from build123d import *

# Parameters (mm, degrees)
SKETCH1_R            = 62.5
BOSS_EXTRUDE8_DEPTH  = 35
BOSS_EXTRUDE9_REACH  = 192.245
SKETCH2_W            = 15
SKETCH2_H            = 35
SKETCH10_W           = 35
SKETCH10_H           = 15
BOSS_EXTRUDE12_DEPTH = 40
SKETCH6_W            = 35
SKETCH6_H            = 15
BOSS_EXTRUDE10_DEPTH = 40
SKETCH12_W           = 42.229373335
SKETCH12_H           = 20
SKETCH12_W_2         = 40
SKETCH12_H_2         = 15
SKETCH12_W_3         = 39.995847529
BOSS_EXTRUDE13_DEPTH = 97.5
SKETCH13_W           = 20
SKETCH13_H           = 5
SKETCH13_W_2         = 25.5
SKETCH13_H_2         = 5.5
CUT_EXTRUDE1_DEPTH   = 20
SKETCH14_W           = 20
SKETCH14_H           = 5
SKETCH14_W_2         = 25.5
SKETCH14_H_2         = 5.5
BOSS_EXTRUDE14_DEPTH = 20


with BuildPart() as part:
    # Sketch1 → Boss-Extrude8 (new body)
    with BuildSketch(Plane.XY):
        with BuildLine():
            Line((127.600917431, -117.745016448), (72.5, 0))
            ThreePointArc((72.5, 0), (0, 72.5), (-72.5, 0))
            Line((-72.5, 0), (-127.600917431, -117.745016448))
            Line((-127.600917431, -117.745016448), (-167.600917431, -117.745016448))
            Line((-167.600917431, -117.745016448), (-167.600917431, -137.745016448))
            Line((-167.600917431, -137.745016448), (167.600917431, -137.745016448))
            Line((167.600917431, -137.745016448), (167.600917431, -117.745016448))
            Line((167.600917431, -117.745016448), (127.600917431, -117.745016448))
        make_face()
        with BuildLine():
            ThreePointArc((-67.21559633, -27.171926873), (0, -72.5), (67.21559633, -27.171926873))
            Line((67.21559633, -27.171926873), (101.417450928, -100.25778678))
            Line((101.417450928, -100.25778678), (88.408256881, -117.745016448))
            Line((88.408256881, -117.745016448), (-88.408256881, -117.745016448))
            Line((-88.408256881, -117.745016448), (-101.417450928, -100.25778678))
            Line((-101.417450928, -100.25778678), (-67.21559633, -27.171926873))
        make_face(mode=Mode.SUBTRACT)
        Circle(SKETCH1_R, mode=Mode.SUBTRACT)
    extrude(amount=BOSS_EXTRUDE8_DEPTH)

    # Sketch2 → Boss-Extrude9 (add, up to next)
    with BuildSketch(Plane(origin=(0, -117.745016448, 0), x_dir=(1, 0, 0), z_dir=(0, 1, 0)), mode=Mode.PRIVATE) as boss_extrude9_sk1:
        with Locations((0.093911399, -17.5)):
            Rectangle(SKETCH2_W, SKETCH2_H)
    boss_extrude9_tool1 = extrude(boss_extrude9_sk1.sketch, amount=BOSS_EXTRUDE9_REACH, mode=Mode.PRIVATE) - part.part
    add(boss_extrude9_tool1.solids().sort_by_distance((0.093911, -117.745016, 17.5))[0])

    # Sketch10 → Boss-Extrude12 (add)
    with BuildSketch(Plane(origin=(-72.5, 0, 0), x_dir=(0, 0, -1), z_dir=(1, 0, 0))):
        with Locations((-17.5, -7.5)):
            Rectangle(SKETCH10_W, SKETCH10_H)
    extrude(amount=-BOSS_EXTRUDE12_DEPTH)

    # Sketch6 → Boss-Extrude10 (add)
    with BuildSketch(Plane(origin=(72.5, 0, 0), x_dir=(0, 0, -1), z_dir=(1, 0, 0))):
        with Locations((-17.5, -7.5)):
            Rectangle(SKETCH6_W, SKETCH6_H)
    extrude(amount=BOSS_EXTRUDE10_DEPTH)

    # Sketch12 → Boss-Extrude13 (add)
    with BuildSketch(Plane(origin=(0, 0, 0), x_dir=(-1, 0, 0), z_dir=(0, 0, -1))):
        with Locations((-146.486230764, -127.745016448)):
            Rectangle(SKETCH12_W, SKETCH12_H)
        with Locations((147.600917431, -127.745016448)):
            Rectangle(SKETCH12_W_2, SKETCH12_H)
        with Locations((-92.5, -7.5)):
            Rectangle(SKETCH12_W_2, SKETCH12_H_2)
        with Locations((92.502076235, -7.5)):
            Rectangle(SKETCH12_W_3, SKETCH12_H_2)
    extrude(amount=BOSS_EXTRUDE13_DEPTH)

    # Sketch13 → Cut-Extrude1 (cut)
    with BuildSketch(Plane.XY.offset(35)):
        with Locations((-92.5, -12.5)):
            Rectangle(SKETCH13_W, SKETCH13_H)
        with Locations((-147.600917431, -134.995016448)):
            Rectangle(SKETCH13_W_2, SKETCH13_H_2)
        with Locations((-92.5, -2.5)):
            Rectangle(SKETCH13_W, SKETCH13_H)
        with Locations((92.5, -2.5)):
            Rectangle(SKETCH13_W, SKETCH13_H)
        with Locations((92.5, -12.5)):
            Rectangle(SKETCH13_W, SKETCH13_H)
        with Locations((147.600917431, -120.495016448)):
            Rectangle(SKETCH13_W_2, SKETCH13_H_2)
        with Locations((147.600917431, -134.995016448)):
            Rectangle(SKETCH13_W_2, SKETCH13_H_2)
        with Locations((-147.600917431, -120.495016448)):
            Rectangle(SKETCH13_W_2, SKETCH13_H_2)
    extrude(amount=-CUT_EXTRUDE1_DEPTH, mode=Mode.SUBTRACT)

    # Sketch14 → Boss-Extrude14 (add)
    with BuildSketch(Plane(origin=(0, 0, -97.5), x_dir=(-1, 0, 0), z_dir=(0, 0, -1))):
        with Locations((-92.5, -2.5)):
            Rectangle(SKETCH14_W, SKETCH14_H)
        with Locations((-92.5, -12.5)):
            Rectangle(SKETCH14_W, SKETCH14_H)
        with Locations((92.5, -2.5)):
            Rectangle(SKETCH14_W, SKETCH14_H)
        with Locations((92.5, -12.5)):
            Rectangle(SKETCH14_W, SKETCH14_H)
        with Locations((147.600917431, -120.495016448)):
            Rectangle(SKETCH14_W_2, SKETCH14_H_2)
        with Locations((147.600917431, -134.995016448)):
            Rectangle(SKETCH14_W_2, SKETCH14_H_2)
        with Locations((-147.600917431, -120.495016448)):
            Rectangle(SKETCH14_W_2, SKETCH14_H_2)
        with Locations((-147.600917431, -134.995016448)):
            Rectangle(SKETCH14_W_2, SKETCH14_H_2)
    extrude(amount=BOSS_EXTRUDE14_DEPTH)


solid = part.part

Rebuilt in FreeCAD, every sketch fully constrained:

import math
import FreeCAD as App
import Part
import Sketcher
from FreeCAD import Vector

doc = App.newDocument("Part")
body = doc.addObject("PartDesign::Body", "Body")

sketch1 = body.newObject("Sketcher::SketchObject", "Sketch")
sketch1.AttachmentSupport = (doc.getObject("XY_Plane"), [""])
sketch1.MapMode = "FlatFace"
sketch1.addGeometry([
    Part.LineSegment(Vector(128, -118, 0), Vector(72, 0, 0)),
    Part.ArcOfCircle(Part.Circle(Vector(0, 0, 0), Vector(0, 0, 1), 72), math.radians(0), math.radians(180)),
    Part.LineSegment(Vector(-72, 0, 0), Vector(-128, -118, 0)),
    Part.LineSegment(Vector(-128, -118, 0), Vector(-168, -118, 0)),
    Part.LineSegment(Vector(-168, -118, 0), Vector(-168, -138, 0)),
    Part.LineSegment(Vector(-168, -138, 0), Vector(168, -138, 0)),
    Part.LineSegment(Vector(168, -138, 0), Vector(168, -118, 0)),
    Part.LineSegment(Vector(168, -118, 0), Vector(128, -118, 0)),
    Part.LineSegment(Vector(-101, -100, 0), Vector(-67, -27, 0)),
    Part.ArcOfCircle(Part.Circle(Vector(0, 0, 0), Vector(0, 0, 1), 72), math.radians(-158), math.radians(-22)),
    Part.LineSegment(Vector(67, -27, 0), Vector(101, -100, 0)),
    Part.LineSegment(Vector(101, -100, 0), Vector(88, -118, 0)),
    Part.LineSegment(Vector(88, -118, 0), Vector(-88, -118, 0)),
    Part.LineSegment(Vector(-88, -118, 0), Vector(-101, -100, 0)),
    Part.Circle(Vector(0, 0, 0), Vector(0, 0, 1), 62),
], False)
sketch1.addConstraint([
    Sketcher.Constraint("Coincident", 0, 2, 1, 1),
    Sketcher.Constraint("Coincident", 1, 2, 2, 1),
    Sketcher.Constraint("Coincident", 2, 2, 3, 1),
    Sketcher.Constraint("Coincident", 3, 2, 4, 1),
    Sketcher.Constraint("Coincident", 4, 2, 5, 1),
    Sketcher.Constraint("Coincident", 5, 2, 6, 1),
    Sketcher.Constraint("Coincident", 6, 2, 7, 1),
    Sketcher.Constraint("Coincident", 7, 2, 0, 1),
    Sketcher.Constraint("Coincident", 8, 2, 9, 1),
    Sketcher.Constraint("Coincident", 9, 2, 10, 1),
    Sketcher.Constraint("Coincident", 10, 2, 11, 1),
    Sketcher.Constraint("Coincident", 11, 2, 12, 1),
    Sketcher.Constraint("Coincident", 12, 2, 13, 1),
    Sketcher.Constraint("Coincident", 13, 2, 8, 1),
    Sketcher.Constraint("Horizontal", 3),
    Sketcher.Constraint("Vertical", 4),
    Sketcher.Constraint("Horizontal", 5),
    Sketcher.Constraint("Vertical", 6),
    Sketcher.Constraint("Horizontal", 7),
    Sketcher.Constraint("Horizontal", 12),
    Sketcher.Constraint("Coincident", 1, 3, -1, 1),
    Sketcher.Constraint("Coincident", 9, 3, -1, 1),
    Sketcher.Constraint("Coincident", 14, 3, -1, 1),
    Sketcher.Constraint("Equal", 1, 9),
    Sketcher.Constraint("Symmetric", 3, 2, 6, 2, -2),
    Sketcher.Constraint("Symmetric", 10, 2, 13, 2, -2),
    Sketcher.Constraint("PointOnObject", 0, 2, -1),
    Sketcher.Constraint("PointOnObject", 1, 2, -1),
    Sketcher.Constraint("Parallel", 2, 8),
    Sketcher.Constraint("Parallel", 0, 10),
    Sketcher.Constraint("Horizontal", 8, 2, 9, 2),
    Sketcher.Constraint("Horizontal", 7, 2, 11, 2),
    Sketcher.Constraint("Equal", 11, 13),
    Sketcher.Constraint("Diameter", 14, 125.0),
    Sketcher.Constraint("Radius", 1, 72.5),
    Sketcher.Constraint("DistanceX", 3, 2, 3, 1, 40.0),
    Sketcher.Constraint("DistanceY", 4, 2, 4, 1, 20.0),
    Sketcher.Constraint("Distance", 0, 130.0),
    Sketcher.Constraint("DistanceX", 5, 1, 5, 2, 335.201835),
    Sketcher.Constraint("DistanceX", 12, 2, 12, 1, 176.816514),
    Sketcher.Constraint("DistanceX", -1, 1, 10, 2, 101.417451),
    Sketcher.Constraint("DistanceX", 2, 2, 8, 2, 60.385321),
])
pad1 = body.newObject("PartDesign::Pad", "Pad")
pad1.Profile = sketch1
pad1.Length = 35

sketch2 = body.newObject("Sketcher::SketchObject", "Sketch001")
sketch2.AttachmentSupport = (doc.getObject("XZ_Plane"), [""])
sketch2.MapMode = "FlatFace"
sketch2.AttachmentOffset = App.Placement(Vector(0, 0, 117.745016), App.Rotation())
sketch2.addGeometry([
    Part.LineSegment(Vector(-7, 0, 0), Vector(-7, 35, 0)),
    Part.LineSegment(Vector(-7, 35, 0), Vector(8, 35, 0)),
    Part.LineSegment(Vector(8, 35, 0), Vector(8, 0, 0)),
    Part.LineSegment(Vector(8, 0, 0), Vector(-7, 0, 0)),
], False)
sketch2.addConstraint([
    Sketcher.Constraint("Coincident", 0, 2, 1, 1),
    Sketcher.Constraint("Coincident", 1, 2, 2, 1),
    Sketcher.Constraint("Coincident", 2, 2, 3, 1),
    Sketcher.Constraint("Coincident", 3, 2, 0, 1),
    Sketcher.Constraint("Vertical", 0),
    Sketcher.Constraint("Horizontal", 1),
    Sketcher.Constraint("Vertical", 2),
    Sketcher.Constraint("Horizontal", 3),
    Sketcher.Constraint("PointOnObject", 2, 2, -1),
    Sketcher.Constraint("DistanceX", 1, 1, 1, 2, 15.0),
    Sketcher.Constraint("DistanceY", 0, 1, 0, 2, 35.0),
    Sketcher.Constraint("DistanceX", 0, 2, -1, 1, 7.406089),
])
pad2 = body.newObject("PartDesign::Pad", "Pad001")
pad2.Profile = sketch2
pad2.Type = "UpToFirst"
pad2.Reversed = True

sketch3 = body.newObject("Sketcher::SketchObject", "Sketch002")
sketch3.AttachmentSupport = (doc.getObject("YZ_Plane"), [""])
sketch3.MapMode = "FlatFace"
sketch3.AttachmentOffset = App.Placement(Vector(0, 0, -72.5), App.Rotation())
sketch3.addGeometry([
    Part.LineSegment(Vector(0, 35, 0), Vector(-15, 35, 0)),
    Part.LineSegment(Vector(-15, 35, 0), Vector(-15, 0, 0)),
    Part.LineSegment(Vector(-15, 0, 0), Vector(0, 0, 0)),
    Part.LineSegment(Vector(0, 0, 0), Vector(0, 35, 0)),
], False)
sketch3.addConstraint([
    Sketcher.Constraint("Coincident", 0, 2, 1, 1),
    Sketcher.Constraint("Coincident", 1, 2, 2, 1),
    Sketcher.Constraint("Coincident", 2, 2, 3, 1),
    Sketcher.Constraint("Coincident", 3, 2, 0, 1),
    Sketcher.Constraint("Horizontal", 0),
    Sketcher.Constraint("Vertical", 1),
    Sketcher.Constraint("Horizontal", 2),
    Sketcher.Constraint("Vertical", 3),
    Sketcher.Constraint("Coincident", 2, 2, -1, 1),
    Sketcher.Constraint("DistanceX", 0, 2, 0, 1, 15.0),
    Sketcher.Constraint("DistanceY", 1, 2, 1, 1, 35.0),
])
pad3 = body.newObject("PartDesign::Pad", "Pad002")
pad3.Profile = sketch3
pad3.Length = 40
pad3.Reversed = True

sketch4 = body.newObject("Sketcher::SketchObject", "Sketch003")
sketch4.AttachmentSupport = (doc.getObject("YZ_Plane"), [""])
sketch4.MapMode = "FlatFace"
sketch4.AttachmentOffset = App.Placement(Vector(0, 0, 72.5), App.Rotation())
sketch4.addGeometry([
    Part.LineSegment(Vector(0, 35, 0), Vector(-15, 35, 0)),
    Part.LineSegment(Vector(-15, 35, 0), Vector(-15, 0, 0)),
    Part.LineSegment(Vector(-15, 0, 0), Vector(0, 0, 0)),
    Part.LineSegment(Vector(0, 0, 0), Vector(0, 35, 0)),
], False)
sketch4.addConstraint([
    Sketcher.Constraint("Coincident", 0, 2, 1, 1),
    Sketcher.Constraint("Coincident", 1, 2, 2, 1),
    Sketcher.Constraint("Coincident", 2, 2, 3, 1),
    Sketcher.Constraint("Coincident", 3, 2, 0, 1),
    Sketcher.Constraint("Horizontal", 0),
    Sketcher.Constraint("Vertical", 1),
    Sketcher.Constraint("Horizontal", 2),
    Sketcher.Constraint("Vertical", 3),
    Sketcher.Constraint("Coincident", 2, 2, -1, 1),
    Sketcher.Constraint("DistanceX", 0, 2, 0, 1, 15.0),
    Sketcher.Constraint("DistanceY", 1, 2, 1, 1, 35.0),
])
pad4 = body.newObject("PartDesign::Pad", "Pad003")
pad4.Profile = sketch4
pad4.Length = 40

sketch5 = body.newObject("Sketcher::SketchObject", "Sketch004")
sketch5.AttachmentSupport = (doc.getObject("XY_Plane"), [""])
sketch5.MapMode = "FlatFace"
sketch5.addGeometry([
    Part.LineSegment(Vector(168, -118, 0), Vector(168, -138, 0)),
    Part.LineSegment(Vector(168, -138, 0), Vector(125, -138, 0)),
    Part.LineSegment(Vector(125, -138, 0), Vector(125, -118, 0)),
    Part.LineSegment(Vector(125, -118, 0), Vector(168, -118, 0)),
    Part.LineSegment(Vector(-128, -118, 0), Vector(-128, -138, 0)),
    Part.LineSegment(Vector(-128, -138, 0), Vector(-168, -138, 0)),
    Part.LineSegment(Vector(-168, -138, 0), Vector(-168, -118, 0)),
    Part.LineSegment(Vector(-168, -118, 0), Vector(-128, -118, 0)),
    Part.LineSegment(Vector(112, 0, 0), Vector(112, -15, 0)),
    Part.LineSegment(Vector(112, -15, 0), Vector(72, -15, 0)),
    Part.LineSegment(Vector(72, -15, 0), Vector(72, 0, 0)),
    Part.LineSegment(Vector(72, 0, 0), Vector(112, 0, 0)),
    Part.LineSegment(Vector(-73, 0, 0), Vector(-73, -15, 0)),
    Part.LineSegment(Vector(-73, -15, 0), Vector(-112, -15, 0)),
    Part.LineSegment(Vector(-112, -15, 0), Vector(-112, 0, 0)),
    Part.LineSegment(Vector(-112, 0, 0), Vector(-73, 0, 0)),
], False)
sketch5.addConstraint([
    Sketcher.Constraint("Coincident", 0, 2, 1, 1),
    Sketcher.Constraint("Coincident", 1, 2, 2, 1),
    Sketcher.Constraint("Coincident", 2, 2, 3, 1),
    Sketcher.Constraint("Coincident", 3, 2, 0, 1),
    Sketcher.Constraint("Coincident", 4, 2, 5, 1),
    Sketcher.Constraint("Coincident", 5, 2, 6, 1),
    Sketcher.Constraint("Coincident", 6, 2, 7, 1),
    Sketcher.Constraint("Coincident", 7, 2, 4, 1),
    Sketcher.Constraint("Coincident", 8, 2, 9, 1),
    Sketcher.Constraint("Coincident", 9, 2, 10, 1),
    Sketcher.Constraint("Coincident", 10, 2, 11, 1),
    Sketcher.Constraint("Coincident", 11, 2, 8, 1),
    Sketcher.Constraint("Coincident", 12, 2, 13, 1),
    Sketcher.Constraint("Coincident", 13, 2, 14, 1),
    Sketcher.Constraint("Coincident", 14, 2, 15, 1),
    Sketcher.Constraint("Coincident", 15, 2, 12, 1),
    Sketcher.Constraint("Vertical", 0),
    Sketcher.Constraint("Horizontal", 1),
    Sketcher.Constraint("Vertical", 2),
    Sketcher.Constraint("Horizontal", 3),
    Sketcher.Constraint("Vertical", 4),
    Sketcher.Constraint("Horizontal", 5),
    Sketcher.Constraint("Vertical", 6),
    Sketcher.Constraint("Horizontal", 7),
    Sketcher.Constraint("Vertical", 8),
    Sketcher.Constraint("Horizontal", 9),
    Sketcher.Constraint("Vertical", 10),
    Sketcher.Constraint("Horizontal", 11),
    Sketcher.Constraint("Vertical", 12),
    Sketcher.Constraint("Horizontal", 13),
    Sketcher.Constraint("Vertical", 14),
    Sketcher.Constraint("Horizontal", 15),
    Sketcher.Constraint("Symmetric", 11, 2, 14, 2, -1, 1),
    Sketcher.Constraint("Symmetric", 0, 2, 5, 2, -2),
    Sketcher.Constraint("PointOnObject", 10, 2, -1),
    Sketcher.Constraint("Horizontal", 3, 2, 6, 2),
    Sketcher.Constraint("Horizontal", 9, 2, 12, 2),
    Sketcher.Constraint("Equal", 7, 9),
    Sketcher.Constraint("DistanceX", 5, 2, 5, 1, 40.0),
    Sketcher.Constraint("DistanceY", 0, 2, 0, 1, 20.0),
    Sketcher.Constraint("DistanceY", 8, 2, 8, 1, 15.0),
    Sketcher.Constraint("DistanceX", -1, 1, 8, 2, 112.5),
    Sketcher.Constraint("DistanceX", 1, 2, 1, 1, 42.229373),
    Sketcher.Constraint("DistanceX", 13, 2, 13, 1, 39.995848),
    Sketcher.Constraint("DistanceX", 4, 2, 1, 2, 252.972462),
    Sketcher.Constraint("DistanceY", 0, 2, -1, 1, 137.745016),
])
pad5 = body.newObject("PartDesign::Pad", "Pad004")
pad5.Profile = sketch5
pad5.Length = 97.5
pad5.Reversed = True

sketch6 = body.newObject("Sketcher::SketchObject", "Sketch005")
sketch6.AttachmentSupport = (doc.getObject("XY_Plane"), [""])
sketch6.MapMode = "FlatFace"
sketch6.AttachmentOffset = App.Placement(Vector(0, 0, 35), App.Rotation())
sketch6.addGeometry([
    Part.LineSegment(Vector(-102, -10, 0), Vector(-102, -15, 0)),
    Part.LineSegment(Vector(-102, -15, 0), Vector(-82, -15, 0)),
    Part.LineSegment(Vector(-82, -15, 0), Vector(-82, -10, 0)),
    Part.LineSegment(Vector(-82, -10, 0), Vector(-102, -10, 0)),
    Part.LineSegment(Vector(-160, -132, 0), Vector(-160, -138, 0)),
    Part.LineSegment(Vector(-160, -138, 0), Vector(-135, -138, 0)),
    Part.LineSegment(Vector(-135, -138, 0), Vector(-135, -132, 0)),
    Part.LineSegment(Vector(-135, -132, 0), Vector(-160, -132, 0)),
    Part.LineSegment(Vector(-102, 0, 0), Vector(-102, -5, 0)),
    Part.LineSegment(Vector(-102, -5, 0), Vector(-82, -5, 0)),
    Part.LineSegment(Vector(-82, -5, 0), Vector(-82, 0, 0)),
    Part.LineSegment(Vector(-82, 0, 0), Vector(-102, 0, 0)),
    Part.LineSegment(Vector(82, 0, 0), Vector(82, -5, 0)),
    Part.LineSegment(Vector(82, -5, 0), Vector(102, -5, 0)),
    Part.LineSegment(Vector(102, -5, 0), Vector(102, 0, 0)),
    Part.LineSegment(Vector(102, 0, 0), Vector(82, 0, 0)),
    Part.LineSegment(Vector(82, -10, 0), Vector(82, -15, 0)),
    Part.LineSegment(Vector(82, -15, 0), Vector(102, -15, 0)),
    Part.LineSegment(Vector(102, -15, 0), Vector(102, -10, 0)),
    Part.LineSegment(Vector(102, -10, 0), Vector(82, -10, 0)),
    Part.LineSegment(Vector(135, -118, 0), Vector(135, -123, 0)),
    Part.LineSegment(Vector(135, -123, 0), Vector(160, -123, 0)),
    Part.LineSegment(Vector(160, -123, 0), Vector(160, -118, 0)),
    Part.LineSegment(Vector(160, -118, 0), Vector(135, -118, 0)),
    Part.LineSegment(Vector(135, -132, 0), Vector(135, -138, 0)),
    Part.LineSegment(Vector(135, -138, 0), Vector(160, -138, 0)),
    Part.LineSegment(Vector(160, -138, 0), Vector(160, -132, 0)),
    Part.LineSegment(Vector(160, -132, 0), Vector(135, -132, 0)),
    Part.LineSegment(Vector(-160, -118, 0), Vector(-160, -123, 0)),
    Part.LineSegment(Vector(-160, -123, 0), Vector(-135, -123, 0)),
    Part.LineSegment(Vector(-135, -123, 0), Vector(-135, -118, 0)),
    Part.LineSegment(Vector(-135, -118, 0), Vector(-160, -118, 0)),
], False)
sketch6.addConstraint([
    Sketcher.Constraint("Coincident", 0, 2, 1, 1),
    Sketcher.Constraint("Coincident", 1, 2, 2, 1),
    Sketcher.Constraint("Coincident", 2, 2, 3, 1),
    Sketcher.Constraint("Coincident", 3, 2, 0, 1),
    Sketcher.Constraint("Coincident", 4, 2, 5, 1),
    Sketcher.Constraint("Coincident", 5, 2, 6, 1),
    Sketcher.Constraint("Coincident", 6, 2, 7, 1),
    Sketcher.Constraint("Coincident", 7, 2, 4, 1),
    Sketcher.Constraint("Coincident", 8, 2, 9, 1),
    Sketcher.Constraint("Coincident", 9, 2, 10, 1),
    Sketcher.Constraint("Coincident", 10, 2, 11, 1),
    Sketcher.Constraint("Coincident", 11, 2, 8, 1),
    Sketcher.Constraint("Coincident", 12, 2, 13, 1),
    Sketcher.Constraint("Coincident", 13, 2, 14, 1),
    Sketcher.Constraint("Coincident", 14, 2, 15, 1),
    Sketcher.Constraint("Coincident", 15, 2, 12, 1),
    Sketcher.Constraint("Coincident", 16, 2, 17, 1),
    Sketcher.Constraint("Coincident", 17, 2, 18, 1),
    Sketcher.Constraint("Coincident", 18, 2, 19, 1),
    Sketcher.Constraint("Coincident", 19, 2, 16, 1),
    Sketcher.Constraint("Coincident", 20, 2, 21, 1),
    Sketcher.Constraint("Coincident", 21, 2, 22, 1),
    Sketcher.Constraint("Coincident", 22, 2, 23, 1),
    Sketcher.Constraint("Coincident", 23, 2, 20, 1),
    Sketcher.Constraint("Coincident", 24, 2, 25, 1),
    Sketcher.Constraint("Coincident", 25, 2, 26, 1),
    Sketcher.Constraint("Coincident", 26, 2, 27, 1),
    Sketcher.Constraint("Coincident", 27, 2, 24, 1),
    Sketcher.Constraint("Coincident", 28, 2, 29, 1),
    Sketcher.Constraint("Coincident", 29, 2, 30, 1),
    Sketcher.Constraint("Coincident", 30, 2, 31, 1),
    Sketcher.Constraint("Coincident", 31, 2, 28, 1),
    Sketcher.Constraint("Vertical", 0),
    Sketcher.Constraint("Horizontal", 1),
    Sketcher.Constraint("Vertical", 2),
    Sketcher.Constraint("Horizontal", 3),
    Sketcher.Constraint("Vertical", 4),
    Sketcher.Constraint("Horizontal", 5),
    Sketcher.Constraint("Vertical", 6),
    Sketcher.Constraint("Horizontal", 7),
    Sketcher.Constraint("Vertical", 8),
    Sketcher.Constraint("Horizontal", 9),
    Sketcher.Constraint("Vertical", 10),
    Sketcher.Constraint("Horizontal", 11),
    Sketcher.Constraint("Vertical", 12),
    Sketcher.Constraint("Horizontal", 13),
    Sketcher.Constraint("Vertical", 14),
    Sketcher.Constraint("Horizontal", 15),
    Sketcher.Constraint("Vertical", 16),
    Sketcher.Constraint("Horizontal", 17),
    Sketcher.Constraint("Vertical", 18),
    Sketcher.Constraint("Horizontal", 19),
    Sketcher.Constraint("Vertical", 20),
    Sketcher.Constraint("Horizontal", 21),
    Sketcher.Constraint("Vertical", 22),
    Sketcher.Constraint("Horizontal", 23),
    Sketcher.Constraint("Vertical", 24),
    Sketcher.Constraint("Horizontal", 25),
    Sketcher.Constraint("Vertical", 26),
    Sketcher.Constraint("Horizontal", 27),
    Sketcher.Constraint("Vertical", 28),
    Sketcher.Constraint("Horizontal", 29),
    Sketcher.Constraint("Vertical", 30),
    Sketcher.Constraint("Horizontal", 31),
    Sketcher.Constraint("Symmetric", 11, 2, 14, 2, -1, 1),
    Sketcher.Constraint("Symmetric", 9, 2, 12, 2, -2),
    Sketcher.Constraint("Symmetric", 1, 2, 16, 2, -2),
    Sketcher.Constraint("Symmetric", 3, 2, 18, 2, -2),
    Sketcher.Constraint("Symmetric", 5, 2, 24, 2, -2),
    Sketcher.Constraint("Symmetric", 7, 2, 26, 2, -2),
    Sketcher.Constraint("Symmetric", 21, 2, 28, 2, -2),
    Sketcher.Constraint("Symmetric", 23, 2, 30, 2, -2),
    Sketcher.Constraint("PointOnObject", 10, 2, -1),
    Sketcher.Constraint("Vertical", 3, 2, 8, 2),
    Sketcher.Constraint("Vertical", 2, 2, 9, 2),
    Sketcher.Constraint("Vertical", 23, 2, 24, 2),
    Sketcher.Constraint("Vertical", 22, 2, 25, 2),
    Sketcher.Constraint("Equal", 2, 8),
    Sketcher.Constraint("Equal", 6, 20),
    Sketcher.Constraint("DistanceX", 1, 1, 1, 2, 20.0),
    Sketcher.Constraint("DistanceY", 0, 2, 0, 1, 5.0),
    Sketcher.Constraint("DistanceX", 5, 1, 5, 2, 25.5),
    Sketcher.Constraint("DistanceY", 4, 2, 4, 1, 5.5),
    Sketcher.Constraint("DistanceY", 0, 2, -1, 1, 15.0),
    Sketcher.Constraint("DistanceX", 9, 2, 12, 2, 165.0),
    Sketcher.Constraint("DistanceY", 24, 2, 23, 2, 20.0),
    Sketcher.Constraint("DistanceX", 4, 2, -1, 1, 160.350917),
    Sketcher.Constraint("DistanceY", 4, 2, -1, 1, 137.745016),
])
pocket1 = body.newObject("PartDesign::Pocket", "Pocket")
pocket1.Profile = sketch6
pocket1.Length = 20

sketch7 = body.newObject("Sketcher::SketchObject", "Sketch006")
sketch7.AttachmentSupport = (doc.getObject("XY_Plane"), [""])
sketch7.MapMode = "FlatFace"
sketch7.AttachmentOffset = App.Placement(Vector(0, 0, -97.5), App.Rotation())
sketch7.addGeometry([
    Part.LineSegment(Vector(102, 0, 0), Vector(102, -5, 0)),
    Part.LineSegment(Vector(102, -5, 0), Vector(82, -5, 0)),
    Part.LineSegment(Vector(82, -5, 0), Vector(82, 0, 0)),
    Part.LineSegment(Vector(82, 0, 0), Vector(102, 0, 0)),
    Part.LineSegment(Vector(102, -10, 0), Vector(102, -15, 0)),
    Part.LineSegment(Vector(102, -15, 0), Vector(82, -15, 0)),
    Part.LineSegment(Vector(82, -15, 0), Vector(82, -10, 0)),
    Part.LineSegment(Vector(82, -10, 0), Vector(102, -10, 0)),
    Part.LineSegment(Vector(-82, 0, 0), Vector(-82, -5, 0)),
    Part.LineSegment(Vector(-82, -5, 0), Vector(-102, -5, 0)),
    Part.LineSegment(Vector(-102, -5, 0), Vector(-102, 0, 0)),
    Part.LineSegment(Vector(-102, 0, 0), Vector(-82, 0, 0)),
    Part.LineSegment(Vector(-82, -10, 0), Vector(-82, -15, 0)),
    Part.LineSegment(Vector(-82, -15, 0), Vector(-102, -15, 0)),
    Part.LineSegment(Vector(-102, -15, 0), Vector(-102, -10, 0)),
    Part.LineSegment(Vector(-102, -10, 0), Vector(-82, -10, 0)),
    Part.LineSegment(Vector(-135, -118, 0), Vector(-135, -123, 0)),
    Part.LineSegment(Vector(-135, -123, 0), Vector(-160, -123, 0)),
    Part.LineSegment(Vector(-160, -123, 0), Vector(-160, -118, 0)),
    Part.LineSegment(Vector(-160, -118, 0), Vector(-135, -118, 0)),
    Part.LineSegment(Vector(-135, -132, 0), Vector(-135, -138, 0)),
    Part.LineSegment(Vector(-135, -138, 0), Vector(-160, -138, 0)),
    Part.LineSegment(Vector(-160, -138, 0), Vector(-160, -132, 0)),
    Part.LineSegment(Vector(-160, -132, 0), Vector(-135, -132, 0)),
    Part.LineSegment(Vector(160, -118, 0), Vector(160, -123, 0)),
    Part.LineSegment(Vector(160, -123, 0), Vector(135, -123, 0)),
    Part.LineSegment(Vector(135, -123, 0), Vector(135, -118, 0)),
    Part.LineSegment(Vector(135, -118, 0), Vector(160, -118, 0)),
    Part.LineSegment(Vector(160, -132, 0), Vector(160, -138, 0)),
    Part.LineSegment(Vector(160, -138, 0), Vector(135, -138, 0)),
    Part.LineSegment(Vector(135, -138, 0), Vector(135, -132, 0)),
    Part.LineSegment(Vector(135, -132, 0), Vector(160, -132, 0)),
], False)
sketch7.addConstraint([
    Sketcher.Constraint("Coincident", 0, 2, 1, 1),
    Sketcher.Constraint("Coincident", 1, 2, 2, 1),
    Sketcher.Constraint("Coincident", 2, 2, 3, 1),
    Sketcher.Constraint("Coincident", 3, 2, 0, 1),
    Sketcher.Constraint("Coincident", 4, 2, 5, 1),
    Sketcher.Constraint("Coincident", 5, 2, 6, 1),
    Sketcher.Constraint("Coincident", 6, 2, 7, 1),
    Sketcher.Constraint("Coincident", 7, 2, 4, 1),
    Sketcher.Constraint("Coincident", 8, 2, 9, 1),
    Sketcher.Constraint("Coincident", 9, 2, 10, 1),
    Sketcher.Constraint("Coincident", 10, 2, 11, 1),
    Sketcher.Constraint("Coincident", 11, 2, 8, 1),
    Sketcher.Constraint("Coincident", 12, 2, 13, 1),
    Sketcher.Constraint("Coincident", 13, 2, 14, 1),
    Sketcher.Constraint("Coincident", 14, 2, 15, 1),
    Sketcher.Constraint("Coincident", 15, 2, 12, 1),
    Sketcher.Constraint("Coincident", 16, 2, 17, 1),
    Sketcher.Constraint("Coincident", 17, 2, 18, 1),
    Sketcher.Constraint("Coincident", 18, 2, 19, 1),
    Sketcher.Constraint("Coincident", 19, 2, 16, 1),
    Sketcher.Constraint("Coincident", 20, 2, 21, 1),
    Sketcher.Constraint("Coincident", 21, 2, 22, 1),
    Sketcher.Constraint("Coincident", 22, 2, 23, 1),
    Sketcher.Constraint("Coincident", 23, 2, 20, 1),
    Sketcher.Constraint("Coincident", 24, 2, 25, 1),
    Sketcher.Constraint("Coincident", 25, 2, 26, 1),
    Sketcher.Constraint("Coincident", 26, 2, 27, 1),
    Sketcher.Constraint("Coincident", 27, 2, 24, 1),
    Sketcher.Constraint("Coincident", 28, 2, 29, 1),
    Sketcher.Constraint("Coincident", 29, 2, 30, 1),
    Sketcher.Constraint("Coincident", 30, 2, 31, 1),
    Sketcher.Constraint("Coincident", 31, 2, 28, 1),
    Sketcher.Constraint("Vertical", 0),
    Sketcher.Constraint("Horizontal", 1),
    Sketcher.Constraint("Vertical", 2),
    Sketcher.Constraint("Horizontal", 3),
    Sketcher.Constraint("Vertical", 4),
    Sketcher.Constraint("Horizontal", 5),
    Sketcher.Constraint("Vertical", 6),
    Sketcher.Constraint("Horizontal", 7),
    Sketcher.Constraint("Vertical", 8),
    Sketcher.Constraint("Horizontal", 9),
    Sketcher.Constraint("Vertical", 10),
    Sketcher.Constraint("Horizontal", 11),
    Sketcher.Constraint("Vertical", 12),
    Sketcher.Constraint("Horizontal", 13),
    Sketcher.Constraint("Vertical", 14),
    Sketcher.Constraint("Horizontal", 15),
    Sketcher.Constraint("Vertical", 16),
    Sketcher.Constraint("Horizontal", 17),
    Sketcher.Constraint("Vertical", 18),
    Sketcher.Constraint("Horizontal", 19),
    Sketcher.Constraint("Vertical", 20),
    Sketcher.Constraint("Horizontal", 21),
    Sketcher.Constraint("Vertical", 22),
    Sketcher.Constraint("Horizontal", 23),
    Sketcher.Constraint("Vertical", 24),
    Sketcher.Constraint("Horizontal", 25),
    Sketcher.Constraint("Vertical", 26),
    Sketcher.Constraint("Horizontal", 27),
    Sketcher.Constraint("Vertical", 28),
    Sketcher.Constraint("Horizontal", 29),
    Sketcher.Constraint("Vertical", 30),
    Sketcher.Constraint("Horizontal", 31),
    Sketcher.Constraint("Symmetric", 3, 2, 10, 2, -1, 1),
    Sketcher.Constraint("Symmetric", 1, 2, 8, 2, -2),
    Sketcher.Constraint("Symmetric", 5, 2, 12, 2, -2),
    Sketcher.Constraint("Symmetric", 7, 2, 14, 2, -2),
    Sketcher.Constraint("Symmetric", 17, 2, 24, 2, -2),
    Sketcher.Constraint("Symmetric", 19, 2, 26, 2, -2),
    Sketcher.Constraint("Symmetric", 21, 2, 28, 2, -2),
    Sketcher.Constraint("Symmetric", 23, 2, 30, 2, -2),
    Sketcher.Constraint("PointOnObject", 2, 2, -1),
    Sketcher.Constraint("Vertical", 3, 2, 4, 2),
    Sketcher.Constraint("Vertical", 2, 2, 5, 2),
    Sketcher.Constraint("Vertical", 19, 2, 20, 2),
    Sketcher.Constraint("Vertical", 18, 2, 21, 2),
    Sketcher.Constraint("Equal", 2, 4),
    Sketcher.Constraint("Equal", 18, 20),
    Sketcher.Constraint("DistanceX", 1, 2, 1, 1, 20.0),
    Sketcher.Constraint("DistanceY", 0, 2, 0, 1, 5.0),
    Sketcher.Constraint("DistanceX", 17, 2, 17, 1, 25.5),
    Sketcher.Constraint("DistanceY", 16, 2, 16, 1, 5.5),
    Sketcher.Constraint("DistanceY", 4, 2, -1, 1, 15.0),
    Sketcher.Constraint("DistanceX", 8, 2, 1, 2, 165.0),
    Sketcher.Constraint("DistanceY", 20, 2, 19, 2, 20.0),
    Sketcher.Constraint("DistanceX", 16, 2, -1, 1, 134.850917),
    Sketcher.Constraint("DistanceY", 16, 2, -1, 1, 123.245016),
])
pad6 = body.newObject("PartDesign::Pad", "Pad005")
pad6.Profile = sketch7
pad6.Length = 20
pad6.Reversed = True

doc.recompute()
